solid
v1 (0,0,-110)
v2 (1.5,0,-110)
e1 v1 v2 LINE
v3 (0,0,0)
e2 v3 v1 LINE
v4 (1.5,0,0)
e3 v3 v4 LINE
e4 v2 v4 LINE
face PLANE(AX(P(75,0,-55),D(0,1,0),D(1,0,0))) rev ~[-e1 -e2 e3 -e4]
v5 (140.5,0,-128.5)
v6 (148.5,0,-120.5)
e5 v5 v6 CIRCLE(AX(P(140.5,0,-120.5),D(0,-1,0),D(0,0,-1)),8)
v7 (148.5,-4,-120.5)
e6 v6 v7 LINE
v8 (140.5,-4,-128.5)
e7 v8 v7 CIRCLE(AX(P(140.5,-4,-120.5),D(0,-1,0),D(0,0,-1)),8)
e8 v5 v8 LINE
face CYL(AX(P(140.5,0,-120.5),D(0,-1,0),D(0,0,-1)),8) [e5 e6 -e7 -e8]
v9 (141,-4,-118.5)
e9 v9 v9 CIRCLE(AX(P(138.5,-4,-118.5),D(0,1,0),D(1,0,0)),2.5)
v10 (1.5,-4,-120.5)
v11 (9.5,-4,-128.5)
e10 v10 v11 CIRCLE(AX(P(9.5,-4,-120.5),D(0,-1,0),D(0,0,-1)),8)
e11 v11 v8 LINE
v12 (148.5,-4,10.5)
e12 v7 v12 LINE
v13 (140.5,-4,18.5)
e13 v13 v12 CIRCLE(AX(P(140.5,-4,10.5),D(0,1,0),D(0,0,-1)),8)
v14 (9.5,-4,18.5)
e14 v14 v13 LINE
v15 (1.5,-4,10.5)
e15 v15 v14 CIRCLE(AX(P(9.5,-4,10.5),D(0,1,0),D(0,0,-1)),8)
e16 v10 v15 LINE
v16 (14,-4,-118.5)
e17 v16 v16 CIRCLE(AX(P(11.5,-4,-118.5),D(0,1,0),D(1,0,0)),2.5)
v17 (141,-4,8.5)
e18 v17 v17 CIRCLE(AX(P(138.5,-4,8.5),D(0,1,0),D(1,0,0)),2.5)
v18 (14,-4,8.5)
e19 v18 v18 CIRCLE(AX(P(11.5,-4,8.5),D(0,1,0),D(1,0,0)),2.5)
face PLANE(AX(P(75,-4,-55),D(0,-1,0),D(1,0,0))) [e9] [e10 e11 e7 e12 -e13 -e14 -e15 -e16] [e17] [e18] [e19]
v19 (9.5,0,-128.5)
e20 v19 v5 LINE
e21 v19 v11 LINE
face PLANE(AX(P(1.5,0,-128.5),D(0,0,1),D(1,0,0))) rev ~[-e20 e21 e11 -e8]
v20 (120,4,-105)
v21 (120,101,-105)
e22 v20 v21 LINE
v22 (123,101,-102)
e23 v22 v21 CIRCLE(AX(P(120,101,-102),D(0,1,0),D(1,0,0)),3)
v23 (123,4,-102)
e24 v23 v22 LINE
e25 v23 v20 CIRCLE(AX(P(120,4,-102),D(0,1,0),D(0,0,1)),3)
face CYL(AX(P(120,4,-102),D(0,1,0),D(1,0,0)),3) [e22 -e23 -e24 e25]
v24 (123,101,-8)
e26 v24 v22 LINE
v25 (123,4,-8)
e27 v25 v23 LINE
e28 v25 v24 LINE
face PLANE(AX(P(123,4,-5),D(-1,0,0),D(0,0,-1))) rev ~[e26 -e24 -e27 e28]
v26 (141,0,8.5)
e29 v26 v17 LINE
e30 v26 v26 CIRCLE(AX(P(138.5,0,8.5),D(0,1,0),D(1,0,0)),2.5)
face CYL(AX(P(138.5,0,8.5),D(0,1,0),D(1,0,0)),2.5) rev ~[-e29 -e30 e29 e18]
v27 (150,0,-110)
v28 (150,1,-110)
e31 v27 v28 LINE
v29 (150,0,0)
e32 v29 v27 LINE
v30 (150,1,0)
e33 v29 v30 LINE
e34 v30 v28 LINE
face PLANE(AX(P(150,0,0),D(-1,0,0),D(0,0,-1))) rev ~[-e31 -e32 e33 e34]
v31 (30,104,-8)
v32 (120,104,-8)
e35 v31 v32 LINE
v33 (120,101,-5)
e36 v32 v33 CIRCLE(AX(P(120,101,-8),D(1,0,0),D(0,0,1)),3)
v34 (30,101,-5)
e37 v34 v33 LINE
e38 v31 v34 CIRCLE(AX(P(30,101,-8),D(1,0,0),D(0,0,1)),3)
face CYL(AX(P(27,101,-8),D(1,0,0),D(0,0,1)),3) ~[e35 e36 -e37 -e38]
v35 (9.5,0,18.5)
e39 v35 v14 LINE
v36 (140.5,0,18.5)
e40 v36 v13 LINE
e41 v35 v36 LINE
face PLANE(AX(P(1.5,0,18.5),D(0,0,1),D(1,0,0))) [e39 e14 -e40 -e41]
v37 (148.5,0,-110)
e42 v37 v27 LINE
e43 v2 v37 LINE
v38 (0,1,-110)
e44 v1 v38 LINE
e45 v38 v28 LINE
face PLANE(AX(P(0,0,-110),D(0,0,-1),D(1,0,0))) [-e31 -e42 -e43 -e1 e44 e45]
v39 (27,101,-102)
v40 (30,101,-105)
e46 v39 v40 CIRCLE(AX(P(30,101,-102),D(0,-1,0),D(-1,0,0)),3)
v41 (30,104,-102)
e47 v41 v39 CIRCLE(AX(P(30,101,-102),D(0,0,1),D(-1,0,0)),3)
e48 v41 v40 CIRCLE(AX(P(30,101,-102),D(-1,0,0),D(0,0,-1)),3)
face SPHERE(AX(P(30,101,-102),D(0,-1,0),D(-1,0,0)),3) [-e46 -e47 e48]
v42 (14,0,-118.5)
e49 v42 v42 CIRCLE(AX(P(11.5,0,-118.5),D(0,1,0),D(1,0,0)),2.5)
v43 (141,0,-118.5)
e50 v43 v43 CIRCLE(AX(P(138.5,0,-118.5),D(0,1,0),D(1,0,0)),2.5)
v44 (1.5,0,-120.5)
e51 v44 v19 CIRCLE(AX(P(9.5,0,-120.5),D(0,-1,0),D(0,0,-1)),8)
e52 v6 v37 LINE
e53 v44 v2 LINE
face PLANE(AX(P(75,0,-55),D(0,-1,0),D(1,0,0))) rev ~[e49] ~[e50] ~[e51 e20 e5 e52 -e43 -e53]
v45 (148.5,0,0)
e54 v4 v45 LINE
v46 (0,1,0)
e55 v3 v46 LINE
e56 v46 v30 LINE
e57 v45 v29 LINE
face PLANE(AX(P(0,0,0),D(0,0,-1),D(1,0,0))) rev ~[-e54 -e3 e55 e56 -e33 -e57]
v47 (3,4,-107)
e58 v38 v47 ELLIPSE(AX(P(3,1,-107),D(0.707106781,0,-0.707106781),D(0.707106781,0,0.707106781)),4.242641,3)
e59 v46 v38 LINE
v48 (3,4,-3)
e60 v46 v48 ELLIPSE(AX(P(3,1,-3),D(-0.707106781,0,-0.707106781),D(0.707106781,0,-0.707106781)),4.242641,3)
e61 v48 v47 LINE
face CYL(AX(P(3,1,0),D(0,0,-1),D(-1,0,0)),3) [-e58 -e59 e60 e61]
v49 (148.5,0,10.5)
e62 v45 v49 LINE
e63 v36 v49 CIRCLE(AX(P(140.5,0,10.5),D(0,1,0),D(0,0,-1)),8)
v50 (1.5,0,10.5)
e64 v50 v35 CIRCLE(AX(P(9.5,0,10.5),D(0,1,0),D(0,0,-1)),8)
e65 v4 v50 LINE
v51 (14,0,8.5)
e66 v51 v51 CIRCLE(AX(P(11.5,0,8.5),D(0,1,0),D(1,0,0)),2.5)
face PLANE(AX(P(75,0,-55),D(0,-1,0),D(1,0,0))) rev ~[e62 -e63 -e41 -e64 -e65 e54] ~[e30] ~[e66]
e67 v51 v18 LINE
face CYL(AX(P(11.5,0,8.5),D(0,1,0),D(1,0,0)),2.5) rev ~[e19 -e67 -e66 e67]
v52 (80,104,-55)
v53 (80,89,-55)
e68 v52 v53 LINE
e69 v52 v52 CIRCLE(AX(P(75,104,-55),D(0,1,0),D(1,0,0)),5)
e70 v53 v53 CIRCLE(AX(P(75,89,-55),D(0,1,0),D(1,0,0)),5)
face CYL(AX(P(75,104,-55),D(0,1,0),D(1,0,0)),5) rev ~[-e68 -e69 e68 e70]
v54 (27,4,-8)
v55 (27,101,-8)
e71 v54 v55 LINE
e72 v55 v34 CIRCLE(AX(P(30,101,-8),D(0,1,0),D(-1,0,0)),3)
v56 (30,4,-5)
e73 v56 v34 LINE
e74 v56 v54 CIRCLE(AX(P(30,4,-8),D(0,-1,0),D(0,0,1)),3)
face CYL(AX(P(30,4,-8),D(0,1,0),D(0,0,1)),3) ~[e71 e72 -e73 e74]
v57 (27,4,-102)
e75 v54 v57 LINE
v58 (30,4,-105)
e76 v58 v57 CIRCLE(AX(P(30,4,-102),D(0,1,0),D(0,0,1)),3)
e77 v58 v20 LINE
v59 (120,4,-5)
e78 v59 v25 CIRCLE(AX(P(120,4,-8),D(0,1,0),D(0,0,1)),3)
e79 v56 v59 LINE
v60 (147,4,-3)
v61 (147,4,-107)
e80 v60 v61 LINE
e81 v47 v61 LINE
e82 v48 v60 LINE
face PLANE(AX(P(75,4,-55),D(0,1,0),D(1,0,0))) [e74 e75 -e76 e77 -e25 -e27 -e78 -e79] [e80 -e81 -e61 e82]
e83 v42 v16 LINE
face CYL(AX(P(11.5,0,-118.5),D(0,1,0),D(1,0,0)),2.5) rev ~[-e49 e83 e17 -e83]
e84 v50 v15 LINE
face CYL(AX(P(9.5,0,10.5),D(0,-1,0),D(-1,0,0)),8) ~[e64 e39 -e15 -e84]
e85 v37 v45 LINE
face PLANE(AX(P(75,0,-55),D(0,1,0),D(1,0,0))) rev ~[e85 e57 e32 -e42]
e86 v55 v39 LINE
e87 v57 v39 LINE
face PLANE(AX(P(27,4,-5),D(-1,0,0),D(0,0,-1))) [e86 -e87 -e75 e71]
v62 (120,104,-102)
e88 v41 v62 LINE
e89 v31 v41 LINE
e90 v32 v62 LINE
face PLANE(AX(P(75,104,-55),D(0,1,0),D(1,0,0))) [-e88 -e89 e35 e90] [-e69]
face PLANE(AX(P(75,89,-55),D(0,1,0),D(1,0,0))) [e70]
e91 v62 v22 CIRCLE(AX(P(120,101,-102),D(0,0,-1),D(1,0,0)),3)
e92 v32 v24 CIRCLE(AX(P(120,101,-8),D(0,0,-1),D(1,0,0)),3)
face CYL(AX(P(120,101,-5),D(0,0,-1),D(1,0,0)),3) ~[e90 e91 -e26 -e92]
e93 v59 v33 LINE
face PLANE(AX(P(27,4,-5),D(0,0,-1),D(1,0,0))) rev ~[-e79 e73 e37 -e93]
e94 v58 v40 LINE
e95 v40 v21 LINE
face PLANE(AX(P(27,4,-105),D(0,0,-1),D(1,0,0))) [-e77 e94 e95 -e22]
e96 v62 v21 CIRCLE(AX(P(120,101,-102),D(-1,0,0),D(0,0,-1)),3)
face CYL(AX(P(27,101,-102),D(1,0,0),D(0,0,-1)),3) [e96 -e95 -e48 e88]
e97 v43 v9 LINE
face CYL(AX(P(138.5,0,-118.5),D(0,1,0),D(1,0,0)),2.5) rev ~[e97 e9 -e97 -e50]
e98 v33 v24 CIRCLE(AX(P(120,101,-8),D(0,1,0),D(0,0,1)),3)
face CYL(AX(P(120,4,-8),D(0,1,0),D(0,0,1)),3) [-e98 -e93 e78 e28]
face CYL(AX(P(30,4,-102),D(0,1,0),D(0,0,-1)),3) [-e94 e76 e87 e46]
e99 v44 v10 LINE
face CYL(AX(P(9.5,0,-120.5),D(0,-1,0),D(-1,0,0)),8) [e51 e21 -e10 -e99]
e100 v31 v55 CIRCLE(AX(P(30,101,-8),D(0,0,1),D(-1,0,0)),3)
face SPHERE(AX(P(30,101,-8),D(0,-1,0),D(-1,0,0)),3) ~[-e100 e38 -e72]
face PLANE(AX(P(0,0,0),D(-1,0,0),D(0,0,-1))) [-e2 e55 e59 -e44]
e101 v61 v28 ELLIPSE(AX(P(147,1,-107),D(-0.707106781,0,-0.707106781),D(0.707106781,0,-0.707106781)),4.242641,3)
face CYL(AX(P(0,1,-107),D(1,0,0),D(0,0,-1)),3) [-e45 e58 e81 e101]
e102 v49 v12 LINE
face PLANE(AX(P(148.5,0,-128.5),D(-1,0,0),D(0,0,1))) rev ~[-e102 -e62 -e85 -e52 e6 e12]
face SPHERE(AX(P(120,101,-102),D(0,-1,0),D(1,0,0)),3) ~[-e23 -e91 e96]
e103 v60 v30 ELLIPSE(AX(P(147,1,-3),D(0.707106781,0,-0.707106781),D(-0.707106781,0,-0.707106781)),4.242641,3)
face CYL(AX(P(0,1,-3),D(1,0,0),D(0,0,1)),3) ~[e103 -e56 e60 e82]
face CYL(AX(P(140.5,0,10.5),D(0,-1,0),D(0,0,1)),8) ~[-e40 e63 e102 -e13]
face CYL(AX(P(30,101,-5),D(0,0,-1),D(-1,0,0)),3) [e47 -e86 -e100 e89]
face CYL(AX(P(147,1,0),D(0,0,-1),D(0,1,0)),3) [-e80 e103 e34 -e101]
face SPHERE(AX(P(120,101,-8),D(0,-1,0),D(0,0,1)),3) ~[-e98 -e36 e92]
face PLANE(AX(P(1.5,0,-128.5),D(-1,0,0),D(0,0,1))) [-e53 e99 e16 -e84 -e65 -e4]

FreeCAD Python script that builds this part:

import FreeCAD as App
import Part
import Sketcher
from FreeCAD import Vector


def edges_at(feature, points):
    """Names of the edges that pass closest to the given points."""
    edges = feature.Shape.Edges
    near = lambda p: min(range(len(edges)), key=lambda i: edges[i].distToShape(Part.Vertex(*p))[0])
    return sorted({f"Edge{near(p) + 1}" for p in points})


def add_polygon(sketch, points):
    """Adds a closed chain of lines whose ends are joined by coincident constraints."""
    first, n = sketch.GeometryCount, len(points)
    for a, b in zip(points, points[1:] + points[:1]):
        sketch.addGeometry(Part.LineSegment(App.Vector(*a, 0), App.Vector(*b, 0)), False)
    for i in range(n):
        sketch.addConstraint(Sketcher.Constraint("Coincident", first + i, 2, first + (i + 1) % n, 1))

doc = App.newDocument("Part")
body = doc.addObject("PartDesign::Body", "Body")

# Sketch on XZ plane
sketch1 = body.newObject("Sketcher::SketchObject", "Sketch")
sketch1.AttachmentSupport = (doc.getObject("XZ_Plane"), [""])
sketch1.MapMode = "FlatFace"
add_polygon(sketch1, [(0, -110), (0, 0), (150, 0), (150, -110)])  # lines 0-3
sketch1.addConstraint([
    Sketcher.Constraint("Vertical", 0),
    Sketcher.Constraint("Horizontal", 1),
    Sketcher.Constraint("Vertical", 2),
    Sketcher.Constraint("Horizontal", 3),
    Sketcher.Constraint("Coincident", 0, 2, -1, 1),
    Sketcher.Constraint("DistanceX", 1, 1, 1, 2, 150.0),
    Sketcher.Constraint("DistanceY", 0, 1, 0, 2, 110.0),
])
pad1 = body.newObject("PartDesign::Pad", "Pad")
pad1.Profile = sketch1
pad1.Length = 4
pad1.Reversed = True

# Sketch on XZ plane
sketch2 = body.newObject("Sketcher::SketchObject", "Sketch001")
sketch2.AttachmentSupport = (doc.getObject("XZ_Plane"), [""])
sketch2.MapMode = "FlatFace"
sketch2.AttachmentOffset = App.Placement(Vector(0, 0, -4), App.Rotation())
add_polygon(sketch2, [(27, -105), (27, -5), (123, -5), (123, -105)])  # lines 0-3
sketch2.addConstraint([
    Sketcher.Constraint("Vertical", 0),
    Sketcher.Constraint("Horizontal", 1),
    Sketcher.Constraint("Vertical", 2),
    Sketcher.Constraint("Horizontal", 3),
    Sketcher.Constraint("DistanceX", 1, 1, 1, 2, 96.0),
    Sketcher.Constraint("DistanceY", 0, 1, 0, 2, 100.0),
    Sketcher.Constraint("DistanceX", -1, 1, 0, 2, 27.0),
    Sketcher.Constraint("DistanceY", 0, 2, -1, 1, 5.0),
])
pad2 = body.newObject("PartDesign::Pad", "Pad001")
pad2.Profile = sketch2
pad2.Length = 100
pad2.Reversed = True
doc.recompute()

fillet = body.newObject("PartDesign::Fillet", "Fillet")
fillet.Base = (pad2, edges_at(pad2, [
    (150, 4, -55),
    (27, 54, -105),
    (27, 54, -5),
    (75, 4, -110),
    (123, 54, -5),
    (123, 54, -105),
    (27, 104, -55),
    (75, 104, -5),
    (123, 104, -55),
    (75, 104, -105),
    (0, 4, -55),
    (75, 4, 0),
]))
fillet.Radius = 3

# Sketch on XZ plane
sketch3 = body.newObject("Sketcher::SketchObject", "Sketch002")
sketch3.AttachmentSupport = (doc.getObject("XZ_Plane"), [""])
sketch3.MapMode = "FlatFace"
sketch3.AttachmentOffset = App.Placement(Vector(0, 0, -104), App.Rotation())
sketch3.addGeometry(Part.Circle(Vector(75, -55, 0), Vector(0, 0, 1), 5), False)
sketch3.addConstraint([
    Sketcher.Constraint("Diameter", 0, 10.0),
    Sketcher.Constraint("DistanceX", -1, 1, 0, 3, 75.0),
    Sketcher.Constraint("DistanceY", 0, 3, -1, 1, 55.0),
])
pocket1 = body.newObject("PartDesign::Pocket", "Pocket")
pocket1.Profile = sketch3
pocket1.Length = 15
pocket1.Reversed = True

# Sketch on XZ plane
sketch4 = body.newObject("Sketcher::SketchObject", "Sketch003")
sketch4.AttachmentSupport = (doc.getObject("XZ_Plane"), [""])
sketch4.MapMode = "FlatFace"
add_polygon(sketch4, [(1.5, 18.5), (1.5, -128.5), (148.5, -128.5), (148.5, 18.5)])  # lines 0-3
sketch4.addConstraint([
    Sketcher.Constraint("Vertical", 0),
    Sketcher.Constraint("Horizontal", 1),
    Sketcher.Constraint("Vertical", 2),
    Sketcher.Constraint("Horizontal", 3),
    Sketcher.Constraint("Equal", 3, 0),
    Sketcher.Constraint("DistanceX", 1, 1, 1, 2, 147.0),
    Sketcher.Constraint("DistanceX", -1, 1, 0, 2, 1.5),
    Sketcher.Constraint("DistanceY", 0, 2, -1, 1, 128.5),
])
pad3 = body.newObject("PartDesign::Pad", "Pad002")
pad3.Profile = sketch4
pad3.Length = 4

# Sketch on XZ plane
sketch5 = body.newObject("Sketcher::SketchObject", "Sketch004")
sketch5.AttachmentSupport = (doc.getObject("XZ_Plane"), [""])
sketch5.MapMode = "FlatFace"
sketch5.addGeometry([
    Part.Circle(Vector(11.5, -118.5, 0), Vector(0, 0, 1), 2.5),
    Part.Circle(Vector(138.5, -118.5, 0), Vector(0, 0, 1), 2.5),
    Part.Circle(Vector(11.5, 8.5, 0), Vector(0, 0, 1), 2.5),
    Part.Circle(Vector(138.5, 8.5, 0), Vector(0, 0, 1), 2.5),
], False)
sketch5.addConstraint([
    Sketcher.Constraint("Equal", 0, 1),
    Sketcher.Constraint("Equal", 1, 2),
    Sketcher.Constraint("Equal", 2, 3),
    Sketcher.Constraint("Horizontal", 0, 3, 1, 3),
    Sketcher.Constraint("Horizontal", 2, 3, 3, 3),
    Sketcher.Constraint("Vertical", 0, 3, 2, 3),
    Sketcher.Constraint("Vertical", 1, 3, 3, 3),
    Sketcher.Constraint("Diameter", 0, 5.0),
    Sketcher.Constraint("DistanceX", 0, 3, 1, 3, 127.0),
    Sketcher.Constraint("DistanceY", 0, 3, 2, 3, 127.0),
    Sketcher.Constraint("DistanceX", -1, 1, 0, 3, 11.5),
    Sketcher.Constraint("DistanceY", 0, 3, -1, 1, 118.5),
])
pocket2 = body.newObject("PartDesign::Pocket", "Pocket001")
pocket2.Profile = sketch5
pocket2.Type = "ThroughAll"
pocket2.Reversed = True
doc.recompute()

fillet2 = body.newObject("PartDesign::Fillet", "Fillet001")
fillet2.Base = (pocket2, edges_at(pocket2, [
    (1.5, -2, 18.5),
    (1.5, -2, -128.5),
    (148.5, -2, -128.5),
    (148.5, -2, 18.5),
]))
fillet2.Radius = 8

doc.recompute()
